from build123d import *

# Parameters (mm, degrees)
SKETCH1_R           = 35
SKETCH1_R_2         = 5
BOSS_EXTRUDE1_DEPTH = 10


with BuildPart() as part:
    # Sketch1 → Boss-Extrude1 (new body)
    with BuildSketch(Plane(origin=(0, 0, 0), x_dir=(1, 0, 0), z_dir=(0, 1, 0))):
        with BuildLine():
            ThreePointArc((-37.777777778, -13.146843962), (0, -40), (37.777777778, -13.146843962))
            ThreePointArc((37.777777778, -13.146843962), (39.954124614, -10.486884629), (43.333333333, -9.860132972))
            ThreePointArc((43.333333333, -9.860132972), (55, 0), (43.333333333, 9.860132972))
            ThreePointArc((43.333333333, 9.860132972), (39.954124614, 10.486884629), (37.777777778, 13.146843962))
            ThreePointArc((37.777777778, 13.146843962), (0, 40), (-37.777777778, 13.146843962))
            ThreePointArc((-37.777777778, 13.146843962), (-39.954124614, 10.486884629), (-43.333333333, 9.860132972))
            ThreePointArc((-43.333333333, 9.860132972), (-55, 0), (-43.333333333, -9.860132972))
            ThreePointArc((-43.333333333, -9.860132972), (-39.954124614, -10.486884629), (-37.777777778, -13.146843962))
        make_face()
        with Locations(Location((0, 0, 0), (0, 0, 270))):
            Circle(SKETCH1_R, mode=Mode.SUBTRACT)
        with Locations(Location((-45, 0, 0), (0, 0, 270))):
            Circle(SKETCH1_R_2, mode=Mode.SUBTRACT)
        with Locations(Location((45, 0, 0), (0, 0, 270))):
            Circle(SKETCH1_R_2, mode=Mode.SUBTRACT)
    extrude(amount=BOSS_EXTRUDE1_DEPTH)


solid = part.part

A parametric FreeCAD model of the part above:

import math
import FreeCAD as App
import Part
import Sketcher

V = App.Vector

doc = App.newDocument("Part")
body = doc.addObject("PartDesign::Body", "Body")

# Sketch on XZ plane
sketch1 = body.newObject("Sketcher::SketchObject", "Sketch")
sketch1.AttachmentSupport = (doc.getObject("XZ_Plane"), [""])
sketch1.MapMode = "FlatFace"
sketch1.addGeometry([
    Part.ArcOfCircle(Part.Circle(V(0, 0, 0), V(0, 0, 1), 40), math.radians(19), math.radians(161)),  # 0
    Part.ArcOfCircle(Part.Circle(V(42, 15, 0), V(0, 0, 1), 5), math.radians(-161), math.radians(-80)),  # 1
    Part.ArcOfCircle(Part.Circle(V(45, 0, 0), V(0, 0, 1), 10), math.radians(-100), math.radians(100)),  # 2
    Part.ArcOfCircle(Part.Circle(V(42, -15, 0), V(0, 0, 1), 5), math.radians(80), math.radians(161)),  # 3
    Part.ArcOfCircle(Part.Circle(V(0, 0, 0), V(0, 0, 1), 40), math.radians(-161), math.radians(-19)),  # 4
    Part.ArcOfCircle(Part.Circle(V(-42, -15, 0), V(0, 0, 1), 5), math.radians(19), math.radians(100)),  # 5
    Part.ArcOfCircle(Part.Circle(V(-45, 0, 0), V(0, 0, 1), 10), math.radians(80), math.radians(280)),  # 6
    Part.ArcOfCircle(Part.Circle(V(-42, 15, 0), V(0, 0, 1), 5), math.radians(-100), math.radians(-19)),  # 7
    Part.Circle(V(-45, 0, 0), V(0, 0, 1), 5),  # 8
    Part.Circle(V(0, 0, 0), V(0, 0, 1), 35),  # 9
    Part.Circle(V(45, 0, 0), V(0, 0, 1), 5),  # 10
], False)
sketch1.addConstraint([
    Sketcher.Constraint("Tangent", 0, 1, 1, 1),
    Sketcher.Constraint("Tangent", 1, 2, 2, 2),
    Sketcher.Constraint("Tangent", 2, 1, 3, 1),
    Sketcher.Constraint("Tangent", 3, 2, 4, 2),
    Sketcher.Constraint("Tangent", 4, 1, 5, 1),
    Sketcher.Constraint("Tangent", 5, 2, 6, 2),
    Sketcher.Constraint("Tangent", 6, 1, 7, 1),
    Sketcher.Constraint("Tangent", 7, 2, 0, 2),
    Sketcher.Constraint("Coincident", 0, 3, -1, 1),
    Sketcher.Constraint("Coincident", 4, 3, -1, 1),
    Sketcher.Constraint("Coincident", 9, 3, -1, 1),
    Sketcher.Constraint("Coincident", 8, 3, 6, 3),
    Sketcher.Constraint("Coincident", 10, 3, 2, 3),
    Sketcher.Constraint("Equal", 1, 3),
    Sketcher.Constraint("Equal", 0, 4),
    Sketcher.Constraint("Equal", 3, 5),
    Sketcher.Constraint("Equal", 2, 6),
    Sketcher.Constraint("Equal", 5, 7),
    Sketcher.Constraint("Equal", 7, 8),
    Sketcher.Constraint("Equal", 8, 10),
    Sketcher.Constraint("Symmetric", 2, 3, 6, 3, -1, 1),
    Sketcher.Constraint("PointOnObject", 2, 3, -1),
    Sketcher.Constraint("Diameter", 8, 10.0),
    Sketcher.Constraint("Diameter", 9, 70.0),
    Sketcher.Constraint("Radius", 0, 40.0),
    Sketcher.Constraint("Radius", 2, 10.0),
    Sketcher.Constraint("DistanceX", -1, 1, 2, 3, 45.0),
])
pad1 = body.newObject("PartDesign::Pad", "Pad")
pad1.Profile = sketch1
pad1.Length = 10
pad1.Reversed = True

doc.recompute()
